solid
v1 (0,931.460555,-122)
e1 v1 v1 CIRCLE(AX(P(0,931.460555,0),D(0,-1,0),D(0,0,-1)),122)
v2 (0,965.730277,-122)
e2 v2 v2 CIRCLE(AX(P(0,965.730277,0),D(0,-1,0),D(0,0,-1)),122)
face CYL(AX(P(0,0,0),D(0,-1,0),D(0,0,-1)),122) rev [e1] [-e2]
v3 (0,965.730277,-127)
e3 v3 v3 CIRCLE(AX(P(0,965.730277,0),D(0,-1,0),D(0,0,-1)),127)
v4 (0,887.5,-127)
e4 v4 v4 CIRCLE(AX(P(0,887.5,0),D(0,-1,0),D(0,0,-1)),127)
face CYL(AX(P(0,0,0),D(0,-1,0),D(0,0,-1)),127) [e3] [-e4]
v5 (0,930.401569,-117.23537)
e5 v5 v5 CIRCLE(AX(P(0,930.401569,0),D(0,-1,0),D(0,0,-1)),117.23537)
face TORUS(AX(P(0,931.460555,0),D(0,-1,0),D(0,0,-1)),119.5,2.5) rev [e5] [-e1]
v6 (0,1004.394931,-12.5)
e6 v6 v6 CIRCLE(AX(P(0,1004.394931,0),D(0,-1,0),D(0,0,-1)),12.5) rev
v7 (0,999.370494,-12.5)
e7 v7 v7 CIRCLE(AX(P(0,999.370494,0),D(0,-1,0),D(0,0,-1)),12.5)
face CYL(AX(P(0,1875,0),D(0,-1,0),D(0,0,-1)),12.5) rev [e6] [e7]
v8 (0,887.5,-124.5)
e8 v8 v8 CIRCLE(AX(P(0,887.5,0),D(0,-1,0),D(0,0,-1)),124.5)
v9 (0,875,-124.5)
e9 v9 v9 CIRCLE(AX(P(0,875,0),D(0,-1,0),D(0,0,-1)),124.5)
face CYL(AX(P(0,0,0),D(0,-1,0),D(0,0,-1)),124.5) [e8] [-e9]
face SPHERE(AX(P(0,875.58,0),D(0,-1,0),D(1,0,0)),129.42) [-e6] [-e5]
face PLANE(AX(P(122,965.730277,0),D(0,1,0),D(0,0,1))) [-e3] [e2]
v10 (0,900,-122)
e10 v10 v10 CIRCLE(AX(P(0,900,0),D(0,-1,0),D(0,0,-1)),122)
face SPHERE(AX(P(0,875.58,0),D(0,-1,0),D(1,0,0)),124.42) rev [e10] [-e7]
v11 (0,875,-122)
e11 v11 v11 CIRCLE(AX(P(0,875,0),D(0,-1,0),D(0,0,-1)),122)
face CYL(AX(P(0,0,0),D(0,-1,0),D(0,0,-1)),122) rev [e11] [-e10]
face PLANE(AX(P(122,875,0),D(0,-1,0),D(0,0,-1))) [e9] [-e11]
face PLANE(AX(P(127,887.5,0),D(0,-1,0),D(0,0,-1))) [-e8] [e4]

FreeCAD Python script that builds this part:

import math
import FreeCAD as App
import Part
import Sketcher

V = App.Vector

doc = App.newDocument("Part")
body = doc.addObject("PartDesign::Body", "Body")

# Sketch on XY plane
sketch1 = body.newObject("Sketcher::SketchObject", "Sketch")
sketch1.AttachmentSupport = (doc.getObject("XY_Plane"), [""])
sketch1.MapMode = "FlatFace"
sketch1.addGeometry([
    Part.LineSegment(V(127, 965.7, 0), V(122, 965.7, 0)),  # 0
    Part.LineSegment(V(122, 965.7, 0), V(122, 931.5, 0)),  # 1
    Part.ArcOfCircle(Part.Circle(V(119.5, 931.5, 0), V(0, 0, 1), 2.5), math.radians(-155), math.radians(0)),  # 2
    Part.ArcOfCircle(Part.Circle(V(0, 875.6, 0), V(0, 0, 1), 129.4), math.radians(25), math.radians(90)),  # 3
    Part.LineSegment(V(0, 1005, 0), V(0, 1000, 0)),  # 4
    Part.ArcOfCircle(Part.Circle(V(0, 875.6, 0), V(0, 0, 1), 124.4), math.radians(11), math.radians(90)),  # 5
    Part.LineSegment(V(122, 900, 0), V(122, 875, 0)),  # 6
    Part.LineSegment(V(122, 875, 0), V(124.5, 875, 0)),  # 7
    Part.LineSegment(V(124.5, 875, 0), V(124.5, 887.5, 0)),  # 8
    Part.LineSegment(V(124.5, 887.5, 0), V(127, 887.5, 0)),  # 9
    Part.LineSegment(V(127, 887.5, 0), V(127, 965.7, 0)),  # 10
], False)
sketch1.addConstraint([
    Sketcher.Constraint("Coincident", 0, 2, 1, 1),
    Sketcher.Constraint("Tangent", 1, 2, 2, 2),
    Sketcher.Constraint("Tangent", 2, 1, 3, 1),
    Sketcher.Constraint("Coincident", 3, 2, 4, 1),
    Sketcher.Constraint("Coincident", 4, 2, 5, 2),
    Sketcher.Constraint("Coincident", 5, 1, 6, 1),
    Sketcher.Constraint("Coincident", 6, 2, 7, 1),
    Sketcher.Constraint("Coincident", 7, 2, 8, 1),
    Sketcher.Constraint("Coincident", 8, 2, 9, 1),
    Sketcher.Constraint("Coincident", 9, 2, 10, 1),
    Sketcher.Constraint("Coincident", 10, 2, 0, 1),
    Sketcher.Constraint("Horizontal", 0),
    Sketcher.Constraint("Vertical", 1),
    Sketcher.Constraint("Vertical", 4),
    Sketcher.Constraint("Vertical", 6),
    Sketcher.Constraint("Horizontal", 7),
    Sketcher.Constraint("Vertical", 8),
    Sketcher.Constraint("Horizontal", 9),
    Sketcher.Constraint("Vertical", 10),
    Sketcher.Constraint("Coincident", 5, 3, 3, 3),
    Sketcher.Constraint("PointOnObject", 3, 3, -2),
    Sketcher.Constraint("PointOnObject", 3, 2, -2),
    Sketcher.Constraint("Vertical", 1, 2, 5, 1),
    Sketcher.Constraint("Equal", 7, 9),
    Sketcher.Constraint("Equal", 0, 4),
    Sketcher.Constraint("Radius", 2, 2.5),
    Sketcher.Constraint("DistanceX", 0, 2, 0, 1, 5.0),
    Sketcher.Constraint("DistanceY", 6, 2, 6, 1, 25.0),
    Sketcher.Constraint("Radius", 3, 129.42),
    Sketcher.Constraint("DistanceY", 8, 1, 8, 2, 12.5),
    Sketcher.Constraint("DistanceX", -1, 1, 0, 2, 122.0),
    Sketcher.Constraint("DistanceY", -1, 1, 3, 2, 1005.0),
    Sketcher.Constraint("DistanceY", 1, 2, 1, 1, 34.269723),
])
revolution = body.newObject("PartDesign::Revolution", "Revolution")
revolution.Profile = sketch1
revolution.ReferenceAxis = (sketch1, ["V_Axis"])
revolution.Angle = 360

# Sketch on XZ plane
sketch2 = body.newObject("Sketcher::SketchObject", "Sketch001")
sketch2.AttachmentSupport = (doc.getObject("XZ_Plane"), [""])
sketch2.MapMode = "FlatFace"
sketch2.AttachmentOffset = App.Placement(V(0, 0, -875), App.Rotation())
sketch2.addGeometry(Part.Circle(V(0, 0, 0), V(0, 0, 1), 12), False)
sketch2.addConstraint([
    Sketcher.Constraint("Coincident", 0, 3, -1, 1),
    Sketcher.Constraint("Diameter", 0, 25.0),
])
pocket1 = body.newObject("PartDesign::Pocket", "Pocket")
pocket1.Profile = sketch2
pocket1.Length = 1000

doc.recompute()
